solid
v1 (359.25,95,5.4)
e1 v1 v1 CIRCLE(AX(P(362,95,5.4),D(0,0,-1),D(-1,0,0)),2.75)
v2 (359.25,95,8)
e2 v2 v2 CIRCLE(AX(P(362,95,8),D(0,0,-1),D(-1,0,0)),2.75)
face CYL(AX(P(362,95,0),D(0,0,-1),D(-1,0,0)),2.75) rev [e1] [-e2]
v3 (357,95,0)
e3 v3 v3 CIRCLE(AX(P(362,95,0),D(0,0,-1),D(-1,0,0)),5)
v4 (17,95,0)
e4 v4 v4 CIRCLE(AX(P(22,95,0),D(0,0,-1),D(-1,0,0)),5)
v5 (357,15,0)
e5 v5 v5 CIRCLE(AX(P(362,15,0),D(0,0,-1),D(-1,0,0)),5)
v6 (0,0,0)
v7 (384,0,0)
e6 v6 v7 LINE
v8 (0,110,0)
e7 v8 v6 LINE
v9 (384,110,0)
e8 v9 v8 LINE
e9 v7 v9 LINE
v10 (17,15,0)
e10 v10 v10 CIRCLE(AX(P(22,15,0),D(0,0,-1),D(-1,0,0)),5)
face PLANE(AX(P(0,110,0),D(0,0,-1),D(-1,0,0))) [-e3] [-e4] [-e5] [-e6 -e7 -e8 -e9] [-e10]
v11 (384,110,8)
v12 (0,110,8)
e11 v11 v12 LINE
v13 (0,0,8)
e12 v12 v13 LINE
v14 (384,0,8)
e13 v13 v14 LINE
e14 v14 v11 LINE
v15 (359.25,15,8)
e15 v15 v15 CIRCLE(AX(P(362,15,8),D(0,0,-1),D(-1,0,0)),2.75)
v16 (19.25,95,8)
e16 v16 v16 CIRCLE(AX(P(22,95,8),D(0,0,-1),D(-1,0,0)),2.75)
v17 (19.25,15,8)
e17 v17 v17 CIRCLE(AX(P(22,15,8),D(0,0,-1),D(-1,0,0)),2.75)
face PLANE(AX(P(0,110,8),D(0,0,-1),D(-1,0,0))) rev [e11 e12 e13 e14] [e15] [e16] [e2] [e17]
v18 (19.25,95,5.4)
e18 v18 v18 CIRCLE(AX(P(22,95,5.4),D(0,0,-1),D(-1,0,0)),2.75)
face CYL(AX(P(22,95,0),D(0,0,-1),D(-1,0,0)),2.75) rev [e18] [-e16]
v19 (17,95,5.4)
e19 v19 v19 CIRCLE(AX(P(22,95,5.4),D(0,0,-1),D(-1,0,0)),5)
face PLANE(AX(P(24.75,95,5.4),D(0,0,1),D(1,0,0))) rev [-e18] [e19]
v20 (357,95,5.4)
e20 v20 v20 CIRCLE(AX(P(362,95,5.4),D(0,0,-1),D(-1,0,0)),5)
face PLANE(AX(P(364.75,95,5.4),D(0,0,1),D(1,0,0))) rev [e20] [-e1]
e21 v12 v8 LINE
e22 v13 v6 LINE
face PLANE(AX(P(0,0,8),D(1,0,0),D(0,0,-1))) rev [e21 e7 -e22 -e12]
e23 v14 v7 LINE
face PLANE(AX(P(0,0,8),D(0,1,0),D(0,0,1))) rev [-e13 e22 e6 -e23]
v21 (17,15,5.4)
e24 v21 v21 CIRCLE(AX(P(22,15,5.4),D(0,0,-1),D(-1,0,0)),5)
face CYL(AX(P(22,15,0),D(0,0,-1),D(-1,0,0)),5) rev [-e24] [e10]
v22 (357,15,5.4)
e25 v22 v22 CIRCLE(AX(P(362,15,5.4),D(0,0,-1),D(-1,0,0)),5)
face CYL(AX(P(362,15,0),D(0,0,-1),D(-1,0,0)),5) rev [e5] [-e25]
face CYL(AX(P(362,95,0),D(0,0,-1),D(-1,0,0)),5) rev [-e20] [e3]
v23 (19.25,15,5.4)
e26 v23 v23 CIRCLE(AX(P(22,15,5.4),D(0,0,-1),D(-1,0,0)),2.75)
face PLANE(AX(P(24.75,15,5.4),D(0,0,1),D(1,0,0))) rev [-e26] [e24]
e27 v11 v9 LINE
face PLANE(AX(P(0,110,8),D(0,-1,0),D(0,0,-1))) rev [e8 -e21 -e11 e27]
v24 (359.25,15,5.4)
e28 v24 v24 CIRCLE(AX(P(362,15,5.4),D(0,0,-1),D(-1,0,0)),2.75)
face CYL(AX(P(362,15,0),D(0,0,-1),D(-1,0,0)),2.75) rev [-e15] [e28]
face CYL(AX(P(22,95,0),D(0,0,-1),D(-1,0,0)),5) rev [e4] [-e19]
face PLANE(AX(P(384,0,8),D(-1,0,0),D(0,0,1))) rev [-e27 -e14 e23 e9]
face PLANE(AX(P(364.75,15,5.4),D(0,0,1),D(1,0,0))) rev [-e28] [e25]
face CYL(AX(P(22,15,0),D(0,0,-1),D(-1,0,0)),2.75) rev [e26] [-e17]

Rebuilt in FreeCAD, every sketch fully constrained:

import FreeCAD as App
import Part
import Sketcher
from FreeCAD import Vector

doc = App.newDocument("Part")
body = doc.addObject("PartDesign::Body", "Body")

# Sketch on XY plane
sketch1 = body.newObject("Sketcher::SketchObject", "Sketch")
sketch1.AttachmentSupport = (doc.getObject("XY_Plane"), [""])
sketch1.MapMode = "FlatFace"
sketch1.addGeometry(Part.LineSegment(Vector(0, 110, 0), Vector(0, 0, 0)), False)
sketch1.addGeometry(Part.LineSegment(Vector(0, 0, 0), Vector(384, 0, 0)), False)
sketch1.addGeometry(Part.LineSegment(Vector(384, 0, 0), Vector(384, 110, 0)), False)
sketch1.addGeometry(Part.LineSegment(Vector(384, 110, 0), Vector(0, 110, 0)), False)
sketch1.addConstraint(Sketcher.Constraint("Coincident", 0, 2, 1, 1))
sketch1.addConstraint(Sketcher.Constraint("Coincident", 1, 2, 2, 1))
sketch1.addConstraint(Sketcher.Constraint("Coincident", 2, 2, 3, 1))
sketch1.addConstraint(Sketcher.Constraint("Coincident", 3, 2, 0, 1))
sketch1.addConstraint(Sketcher.Constraint("Vertical", 0))
sketch1.addConstraint(Sketcher.Constraint("Horizontal", 1))
sketch1.addConstraint(Sketcher.Constraint("Vertical", 2))
sketch1.addConstraint(Sketcher.Constraint("Horizontal", 3))
sketch1.addConstraint(Sketcher.Constraint("Coincident", 0, 2, -1, 1))
sketch1.addConstraint(Sketcher.Constraint("DistanceX", 1, 1, 1, 2, 384.0))
sketch1.addConstraint(Sketcher.Constraint("DistanceY", 0, 2, 0, 1, 110.0))
pad1 = body.newObject("PartDesign::Pad", "Pad")
pad1.Profile = sketch1
pad1.Length = 8

# Sketch on XY plane
sketch2 = body.newObject("Sketcher::SketchObject", "Sketch001")
sketch2.AttachmentSupport = (doc.getObject("XY_Plane"), [""])
sketch2.MapMode = "FlatFace"
sketch2.addGeometry(Part.Circle(Vector(362, 95, 0), Vector(0, 0, 1), 2.8), False)
sketch2.addGeometry(Part.Circle(Vector(22, 95, 0), Vector(0, 0, 1), 2.8), False)
sketch2.addGeometry(Part.Circle(Vector(22, 15, 0), Vector(0, 0, 1), 2.8), False)
sketch2.addGeometry(Part.Circle(Vector(362, 15, 0), Vector(0, 0, 1), 2.8), False)
sketch2.addConstraint(Sketcher.Constraint("Equal", 0, 1))
sketch2.addConstraint(Sketcher.Constraint("Equal", 1, 2))
sketch2.addConstraint(Sketcher.Constraint("Equal", 2, 3))
sketch2.addConstraint(Sketcher.Constraint("Horizontal", 0, 3, 1, 3))
sketch2.addConstraint(Sketcher.Constraint("Horizontal", 2, 3, 3, 3))
sketch2.addConstraint(Sketcher.Constraint("Vertical", 1, 3, 2, 3))
sketch2.addConstraint(Sketcher.Constraint("Vertical", 0, 3, 3, 3))
sketch2.addConstraint(Sketcher.Constraint("Diameter", 0, 5.5))
sketch2.addConstraint(Sketcher.Constraint("DistanceX", -1, 1, 0, 3, 362.0))
sketch2.addConstraint(Sketcher.Constraint("DistanceY", -1, 1, 0, 3, 95.0))
sketch2.addConstraint(Sketcher.Constraint("DistanceX", -1, 1, 1, 3, 22.0))
sketch2.addConstraint(Sketcher.Constraint("DistanceY", -1, 1, 2, 3, 15.0))
doc.recompute()
hole = body.newObject("PartDesign::Hole", "Hole")
hole.Profile = sketch2
hole.ThreadType = "None"
hole.Diameter = 5.5
hole.DepthType = "ThroughAll"
hole.HoleCutType = "Counterbore"
hole.HoleCutDiameter = 10
hole.HoleCutDepth = 5.4
hole.Reversed = True

doc.recompute()
